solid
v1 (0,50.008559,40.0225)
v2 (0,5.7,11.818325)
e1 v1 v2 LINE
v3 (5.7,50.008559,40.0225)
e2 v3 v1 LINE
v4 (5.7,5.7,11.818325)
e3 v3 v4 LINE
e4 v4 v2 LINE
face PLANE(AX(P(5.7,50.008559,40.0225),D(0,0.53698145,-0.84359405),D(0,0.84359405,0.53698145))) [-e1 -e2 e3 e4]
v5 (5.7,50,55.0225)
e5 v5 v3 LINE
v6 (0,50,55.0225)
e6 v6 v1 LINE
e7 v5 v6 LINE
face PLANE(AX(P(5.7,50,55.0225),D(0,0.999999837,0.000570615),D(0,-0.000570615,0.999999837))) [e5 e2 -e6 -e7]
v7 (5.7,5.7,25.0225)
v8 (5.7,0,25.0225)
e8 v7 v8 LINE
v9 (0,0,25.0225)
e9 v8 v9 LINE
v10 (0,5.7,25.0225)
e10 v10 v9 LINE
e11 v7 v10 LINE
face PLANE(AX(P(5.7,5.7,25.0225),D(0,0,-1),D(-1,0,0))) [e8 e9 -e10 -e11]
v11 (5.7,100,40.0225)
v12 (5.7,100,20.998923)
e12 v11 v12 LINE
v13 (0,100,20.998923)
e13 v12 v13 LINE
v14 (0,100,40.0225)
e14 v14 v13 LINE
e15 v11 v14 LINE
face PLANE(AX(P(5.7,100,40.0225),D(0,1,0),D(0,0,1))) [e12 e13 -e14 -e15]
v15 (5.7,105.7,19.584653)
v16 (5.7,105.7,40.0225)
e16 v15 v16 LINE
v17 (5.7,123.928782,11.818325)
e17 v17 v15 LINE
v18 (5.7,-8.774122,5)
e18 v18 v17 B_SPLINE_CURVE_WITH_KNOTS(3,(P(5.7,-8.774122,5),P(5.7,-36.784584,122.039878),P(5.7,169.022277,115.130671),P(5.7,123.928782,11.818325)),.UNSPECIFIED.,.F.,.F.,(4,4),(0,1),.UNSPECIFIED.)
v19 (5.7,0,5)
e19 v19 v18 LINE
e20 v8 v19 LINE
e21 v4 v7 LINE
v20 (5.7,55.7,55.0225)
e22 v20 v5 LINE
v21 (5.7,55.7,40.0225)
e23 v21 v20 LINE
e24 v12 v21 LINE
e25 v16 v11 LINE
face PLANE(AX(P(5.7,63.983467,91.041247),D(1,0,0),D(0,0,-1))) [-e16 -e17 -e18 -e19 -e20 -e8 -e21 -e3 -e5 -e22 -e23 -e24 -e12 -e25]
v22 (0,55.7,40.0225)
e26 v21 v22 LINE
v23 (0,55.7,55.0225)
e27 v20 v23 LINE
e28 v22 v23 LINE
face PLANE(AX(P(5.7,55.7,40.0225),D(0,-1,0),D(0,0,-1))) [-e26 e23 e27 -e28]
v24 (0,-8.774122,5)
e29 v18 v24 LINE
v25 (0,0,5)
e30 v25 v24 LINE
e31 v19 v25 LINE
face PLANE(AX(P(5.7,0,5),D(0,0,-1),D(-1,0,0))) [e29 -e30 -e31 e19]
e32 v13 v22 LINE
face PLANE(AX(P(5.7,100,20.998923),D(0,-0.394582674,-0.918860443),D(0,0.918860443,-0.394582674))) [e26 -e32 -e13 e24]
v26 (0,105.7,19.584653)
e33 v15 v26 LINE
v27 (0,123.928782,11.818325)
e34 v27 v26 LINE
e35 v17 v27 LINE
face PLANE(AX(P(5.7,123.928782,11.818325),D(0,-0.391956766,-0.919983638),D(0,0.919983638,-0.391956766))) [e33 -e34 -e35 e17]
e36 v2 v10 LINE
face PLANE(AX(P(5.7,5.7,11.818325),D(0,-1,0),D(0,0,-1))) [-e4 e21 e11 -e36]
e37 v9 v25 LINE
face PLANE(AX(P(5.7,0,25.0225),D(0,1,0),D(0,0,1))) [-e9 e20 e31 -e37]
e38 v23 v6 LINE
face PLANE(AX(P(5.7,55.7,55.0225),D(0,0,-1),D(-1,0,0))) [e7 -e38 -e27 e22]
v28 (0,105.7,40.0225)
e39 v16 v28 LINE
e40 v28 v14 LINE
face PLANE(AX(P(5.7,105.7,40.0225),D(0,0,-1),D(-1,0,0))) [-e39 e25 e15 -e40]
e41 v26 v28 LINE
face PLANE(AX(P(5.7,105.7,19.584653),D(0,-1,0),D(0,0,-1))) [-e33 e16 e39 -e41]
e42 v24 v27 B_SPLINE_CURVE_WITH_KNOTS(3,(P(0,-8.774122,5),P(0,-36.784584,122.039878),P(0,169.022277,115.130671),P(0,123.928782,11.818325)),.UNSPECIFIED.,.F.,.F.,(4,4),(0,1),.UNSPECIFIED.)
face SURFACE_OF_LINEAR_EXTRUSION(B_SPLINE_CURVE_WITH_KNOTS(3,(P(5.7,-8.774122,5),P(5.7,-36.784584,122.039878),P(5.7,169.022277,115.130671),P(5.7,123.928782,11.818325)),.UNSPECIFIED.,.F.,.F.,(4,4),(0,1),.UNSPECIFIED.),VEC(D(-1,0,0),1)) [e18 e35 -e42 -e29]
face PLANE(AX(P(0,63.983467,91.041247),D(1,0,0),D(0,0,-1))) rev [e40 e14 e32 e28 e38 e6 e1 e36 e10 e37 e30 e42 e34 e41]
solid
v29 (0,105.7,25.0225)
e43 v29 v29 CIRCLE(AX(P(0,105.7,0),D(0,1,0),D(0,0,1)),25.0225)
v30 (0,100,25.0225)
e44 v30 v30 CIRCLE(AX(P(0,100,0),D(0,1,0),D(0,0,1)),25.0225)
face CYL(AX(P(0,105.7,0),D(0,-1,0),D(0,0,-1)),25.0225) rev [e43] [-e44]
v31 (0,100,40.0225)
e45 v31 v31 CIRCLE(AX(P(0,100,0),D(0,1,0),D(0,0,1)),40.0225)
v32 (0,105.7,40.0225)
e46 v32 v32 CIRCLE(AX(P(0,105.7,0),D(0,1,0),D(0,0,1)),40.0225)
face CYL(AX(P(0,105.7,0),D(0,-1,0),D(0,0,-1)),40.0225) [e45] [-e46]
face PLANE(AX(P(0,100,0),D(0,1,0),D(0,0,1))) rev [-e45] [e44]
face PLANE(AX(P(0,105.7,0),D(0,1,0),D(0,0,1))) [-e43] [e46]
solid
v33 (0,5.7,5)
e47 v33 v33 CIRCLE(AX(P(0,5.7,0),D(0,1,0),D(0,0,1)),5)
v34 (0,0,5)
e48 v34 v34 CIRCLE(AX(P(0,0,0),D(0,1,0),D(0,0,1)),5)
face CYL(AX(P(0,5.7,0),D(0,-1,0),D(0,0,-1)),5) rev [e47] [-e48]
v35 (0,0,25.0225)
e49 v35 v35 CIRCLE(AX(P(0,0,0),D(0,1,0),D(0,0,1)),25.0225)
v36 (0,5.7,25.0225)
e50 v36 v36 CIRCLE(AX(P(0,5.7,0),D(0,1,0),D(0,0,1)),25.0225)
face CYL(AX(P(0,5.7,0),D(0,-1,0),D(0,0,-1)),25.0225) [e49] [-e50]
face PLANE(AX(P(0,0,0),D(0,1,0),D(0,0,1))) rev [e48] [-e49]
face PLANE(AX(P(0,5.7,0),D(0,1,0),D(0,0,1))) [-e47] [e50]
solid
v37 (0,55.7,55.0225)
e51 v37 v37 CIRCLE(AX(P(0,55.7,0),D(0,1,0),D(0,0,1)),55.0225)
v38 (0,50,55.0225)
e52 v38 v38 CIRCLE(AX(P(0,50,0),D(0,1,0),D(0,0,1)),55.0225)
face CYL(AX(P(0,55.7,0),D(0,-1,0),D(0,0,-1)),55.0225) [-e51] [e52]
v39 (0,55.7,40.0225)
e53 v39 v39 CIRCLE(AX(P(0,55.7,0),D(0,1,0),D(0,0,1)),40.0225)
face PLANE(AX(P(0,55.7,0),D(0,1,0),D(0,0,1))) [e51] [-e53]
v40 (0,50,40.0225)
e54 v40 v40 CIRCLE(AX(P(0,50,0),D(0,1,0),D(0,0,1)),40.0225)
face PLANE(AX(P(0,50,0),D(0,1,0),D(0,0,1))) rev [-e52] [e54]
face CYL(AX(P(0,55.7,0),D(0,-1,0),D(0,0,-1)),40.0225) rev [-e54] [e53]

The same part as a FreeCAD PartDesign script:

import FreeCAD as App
import Part
import Sketcher
Q = App.Units.Quantity

doc = App.newDocument("Part")
params = doc.addObject("Spreadsheet::Sheet", "Params")
for row, (alias, value) in enumerate([
    ("sketch1_diameter", "10 mm"),
    ("pad1_length", "5.7 mm"),
    ("pad2_length", "5.7 mm"),
    ("pad3_length", "5.7 mm"),
    ("sketch4_height", "15 mm"),
    ("sketch4_width", "5.7 mm"),
    ("pad4_length", "5.7 mm"),
], start=1):
    params.set(f"A{row}", alias)
    params.set(f"B{row}", "=" + value)
    params.setAlias(f"B{row}", alias)

body = doc.addObject("PartDesign::Body", "Body")

sketch1 = body.newObject("Sketcher::SketchObject", "Sketch")
sketch1.AttachmentSupport = (doc.getObject("XZ_Plane"), [""])
sketch1.MapMode = "FlatFace"
sketch1.addGeometry([
    Part.Circle(App.Vector(0, 0, 0), App.Vector(0, 0, 1), 25.0225),
    Part.Circle(App.Vector(0, 0, 0), App.Vector(0, 0, 1), 5),
], False)
sketch1.addConstraint([
    Sketcher.Constraint("Coincident", 0, 3, -1, 1),
    Sketcher.Constraint("Coincident", 1, 3, -1, 1),
    Sketcher.Constraint("Diameter", 1, Q("10 mm")),
    Sketcher.Constraint("Diameter", 0, Q("50.045 mm")),
])
sketch1.setExpression("Constraints[2]", "Params.sketch1_diameter")
pad1 = body.newObject("PartDesign::Pad", "Pad")
pad1.Profile = sketch1
pad1.setExpression("Length", "Params.pad1_length")
pad1.Reversed = True
body2 = doc.addObject("PartDesign::Body", "Body001")

sketch2 = body2.newObject("Sketcher::SketchObject", "Sketch001")
sketch2.AttachmentSupport = (doc.getObject("XZ_Plane001"), [""])
sketch2.MapMode = "FlatFace"
sketch2.AttachmentOffset = App.Placement(App.Vector(0, 0, -50), App.Rotation())
sketch2.addGeometry([
    Part.Circle(App.Vector(0, 0, 0), App.Vector(0, 0, 1), 55.0225),
    Part.Circle(App.Vector(0, 0, 0), App.Vector(0, 0, 1), 40.0225),
], False)
sketch2.addConstraint([
    Sketcher.Constraint("Coincident", 0, 3, -1, 1),
    Sketcher.Constraint("Coincident", 1, 3, -1, 1),
    Sketcher.Constraint("Diameter", 0, Q("110.045 mm")),
    Sketcher.Constraint("Diameter", 1, Q("80.045 mm")),
])
pad2 = body2.newObject("PartDesign::Pad", "Pad001")
pad2.Profile = sketch2
pad2.setExpression("Length", "Params.pad2_length")
pad2.Reversed = True
body3 = doc.addObject("PartDesign::Body", "Body002")

sketch3 = body3.newObject("Sketcher::SketchObject", "Sketch002")
sketch3.AttachmentSupport = (doc.getObject("XZ_Plane002"), [""])
sketch3.MapMode = "FlatFace"
sketch3.AttachmentOffset = App.Placement(App.Vector(0, 0, -100), App.Rotation())
sketch3.addGeometry([
    Part.Circle(App.Vector(0, 0, 0), App.Vector(0, 0, 1), 40.0225),
    Part.Circle(App.Vector(0, 0, 0), App.Vector(0, 0, 1), 25.0225),
], False)
sketch3.addConstraint([
    Sketcher.Constraint("Coincident", 0, 3, -1, 1),
    Sketcher.Constraint("Coincident", 1, 3, -1, 1),
    Sketcher.Constraint("Diameter", 0, Q("80.045 mm")),
    Sketcher.Constraint("Diameter", 1, Q("50.045 mm")),
])
pad3 = body3.newObject("PartDesign::Pad", "Pad002")
pad3.Profile = sketch3
pad3.setExpression("Length", "Params.pad3_length")
pad3.Reversed = True
body4 = doc.addObject("PartDesign::Body", "Body003")

sketch4 = body4.newObject("Sketcher::SketchObject", "Sketch003")
sketch4.AttachmentSupport = (doc.getObject("YZ_Plane003"), [""])
sketch4.MapMode = "FlatFace"
sketch4.addGeometry([
    Part.LineSegment(App.Vector(-8.774122, 5, 0), App.Vector(0, 5, 0)),
    Part.LineSegment(App.Vector(0, 5, 0), App.Vector(0, 25.0225, 0)),
    Part.LineSegment(App.Vector(0, 25.0225, 0), App.Vector(5.7, 25.0225, 0)),
    Part.LineSegment(App.Vector(5.7, 25.0225, 0), App.Vector(5.7, 11.818325, 0)),
    Part.LineSegment(App.Vector(5.7, 11.818325, 0), App.Vector(50.008559, 40.0225, 0)),
    Part.LineSegment(App.Vector(50.008559, 40.0225, 0), App.Vector(50, 55.0225, 0)),
    Part.LineSegment(App.Vector(50, 55.0225, 0), App.Vector(55.7, 55.0225, 0)),
    Part.LineSegment(App.Vector(55.7, 55.0225, 0), App.Vector(55.7, 40.0225, 0)),
    Part.LineSegment(App.Vector(55.7, 40.0225, 0), App.Vector(100, 20.998923, 0)),
    Part.LineSegment(App.Vector(100, 20.998923, 0), App.Vector(100, 40.0225, 0)),
    Part.LineSegment(App.Vector(100, 40.0225, 0), App.Vector(105.7, 40.0225, 0)),
    Part.LineSegment(App.Vector(105.7, 40.0225, 0), App.Vector(105.7, 19.584653, 0)),
    Part.LineSegment(App.Vector(105.7, 19.584653, 0), App.Vector(123.928782, 11.818325, 0)),
    Part.BSplineCurve([App.Vector(-8.774122, 5, 0), App.Vector(-36.784584, 122.039878, 0), App.Vector(169.022277, 115.130671, 0), App.Vector(123.928782, 11.818325, 0)], [4, 4], [0, 1], False, 3, [1, 1, 1, 1], False),
], False)
sketch4.addConstraint([
    Sketcher.Constraint("Block", 13),
    Sketcher.Constraint("Coincident", 0, 2, 1, 1),
    Sketcher.Constraint("Coincident", 1, 2, 2, 1),
    Sketcher.Constraint("Coincident", 2, 2, 3, 1),
    Sketcher.Constraint("Coincident", 3, 2, 4, 1),
    Sketcher.Constraint("Coincident", 4, 2, 5, 1),
    Sketcher.Constraint("Coincident", 5, 2, 6, 1),
    Sketcher.Constraint("Coincident", 6, 2, 7, 1),
    Sketcher.Constraint("Coincident", 7, 2, 8, 1),
    Sketcher.Constraint("Coincident", 8, 2, 9, 1),
    Sketcher.Constraint("Coincident", 9, 2, 10, 1),
    Sketcher.Constraint("Coincident", 10, 2, 11, 1),
    Sketcher.Constraint("Coincident", 11, 2, 12, 1),
    Sketcher.Constraint("Coincident", 12, 2, 13, 2),
    Sketcher.Constraint("Coincident", 13, 1, 0, 1),
    Sketcher.Constraint("Horizontal", 0),
    Sketcher.Constraint("Vertical", 1),
    Sketcher.Constraint("Horizontal", 2),
    Sketcher.Constraint("Vertical", 3),
    Sketcher.Constraint("Horizontal", 6),
    Sketcher.Constraint("Vertical", 7),
    Sketcher.Constraint("Vertical", 9),
    Sketcher.Constraint("Horizontal", 10),
    Sketcher.Constraint("Vertical", 11),
    Sketcher.Constraint("PointOnObject", 0, 2, -2),
    Sketcher.Constraint("Horizontal", 4, 2, 7, 2),
    Sketcher.Constraint("Horizontal", 7, 2, 9, 2),
    Sketcher.Constraint("Horizontal", 3, 2, 12, 2),
    Sketcher.Constraint("Equal", 2, 6),
    Sketcher.Constraint("Equal", 6, 10),
    Sketcher.Constraint("DistanceY", 7, 2, 7, 1, Q("15 mm")),
    Sketcher.Constraint("DistanceX", 2, 1, 2, 2, Q("5.7 mm")),
    Sketcher.Constraint("DistanceX", -1, 1, 5, 2, Q("50 mm")),
    Sketcher.Constraint("DistanceX", -1, 1, 8, 2, Q("100 mm")),
    Sketcher.Constraint("DistanceY", 2, 2, 4, 2, Q("15 mm")),
    Sketcher.Constraint("DistanceY", 1, 1, 1, 2, Q("20.0225 mm")),
    Sketcher.Constraint("DistanceY", 12, 2, 8, 2, Q("9.180598 mm")),
    Sketcher.Constraint("DistanceY", 11, 2, 11, 1, Q("20.437847 mm")),
    Sketcher.Constraint("DistanceX", -1, 1, 4, 2, Q("50.008559 mm")),
])
sketch4.setExpression("Constraints[30]", "Params.sketch4_height")
sketch4.setExpression("Constraints[31]", "Params.sketch4_width")
pad4 = body4.newObject("PartDesign::Pad", "Pad003")
pad4.Profile = sketch4
pad4.setExpression("Length", "Params.pad4_length")

doc.recompute()
